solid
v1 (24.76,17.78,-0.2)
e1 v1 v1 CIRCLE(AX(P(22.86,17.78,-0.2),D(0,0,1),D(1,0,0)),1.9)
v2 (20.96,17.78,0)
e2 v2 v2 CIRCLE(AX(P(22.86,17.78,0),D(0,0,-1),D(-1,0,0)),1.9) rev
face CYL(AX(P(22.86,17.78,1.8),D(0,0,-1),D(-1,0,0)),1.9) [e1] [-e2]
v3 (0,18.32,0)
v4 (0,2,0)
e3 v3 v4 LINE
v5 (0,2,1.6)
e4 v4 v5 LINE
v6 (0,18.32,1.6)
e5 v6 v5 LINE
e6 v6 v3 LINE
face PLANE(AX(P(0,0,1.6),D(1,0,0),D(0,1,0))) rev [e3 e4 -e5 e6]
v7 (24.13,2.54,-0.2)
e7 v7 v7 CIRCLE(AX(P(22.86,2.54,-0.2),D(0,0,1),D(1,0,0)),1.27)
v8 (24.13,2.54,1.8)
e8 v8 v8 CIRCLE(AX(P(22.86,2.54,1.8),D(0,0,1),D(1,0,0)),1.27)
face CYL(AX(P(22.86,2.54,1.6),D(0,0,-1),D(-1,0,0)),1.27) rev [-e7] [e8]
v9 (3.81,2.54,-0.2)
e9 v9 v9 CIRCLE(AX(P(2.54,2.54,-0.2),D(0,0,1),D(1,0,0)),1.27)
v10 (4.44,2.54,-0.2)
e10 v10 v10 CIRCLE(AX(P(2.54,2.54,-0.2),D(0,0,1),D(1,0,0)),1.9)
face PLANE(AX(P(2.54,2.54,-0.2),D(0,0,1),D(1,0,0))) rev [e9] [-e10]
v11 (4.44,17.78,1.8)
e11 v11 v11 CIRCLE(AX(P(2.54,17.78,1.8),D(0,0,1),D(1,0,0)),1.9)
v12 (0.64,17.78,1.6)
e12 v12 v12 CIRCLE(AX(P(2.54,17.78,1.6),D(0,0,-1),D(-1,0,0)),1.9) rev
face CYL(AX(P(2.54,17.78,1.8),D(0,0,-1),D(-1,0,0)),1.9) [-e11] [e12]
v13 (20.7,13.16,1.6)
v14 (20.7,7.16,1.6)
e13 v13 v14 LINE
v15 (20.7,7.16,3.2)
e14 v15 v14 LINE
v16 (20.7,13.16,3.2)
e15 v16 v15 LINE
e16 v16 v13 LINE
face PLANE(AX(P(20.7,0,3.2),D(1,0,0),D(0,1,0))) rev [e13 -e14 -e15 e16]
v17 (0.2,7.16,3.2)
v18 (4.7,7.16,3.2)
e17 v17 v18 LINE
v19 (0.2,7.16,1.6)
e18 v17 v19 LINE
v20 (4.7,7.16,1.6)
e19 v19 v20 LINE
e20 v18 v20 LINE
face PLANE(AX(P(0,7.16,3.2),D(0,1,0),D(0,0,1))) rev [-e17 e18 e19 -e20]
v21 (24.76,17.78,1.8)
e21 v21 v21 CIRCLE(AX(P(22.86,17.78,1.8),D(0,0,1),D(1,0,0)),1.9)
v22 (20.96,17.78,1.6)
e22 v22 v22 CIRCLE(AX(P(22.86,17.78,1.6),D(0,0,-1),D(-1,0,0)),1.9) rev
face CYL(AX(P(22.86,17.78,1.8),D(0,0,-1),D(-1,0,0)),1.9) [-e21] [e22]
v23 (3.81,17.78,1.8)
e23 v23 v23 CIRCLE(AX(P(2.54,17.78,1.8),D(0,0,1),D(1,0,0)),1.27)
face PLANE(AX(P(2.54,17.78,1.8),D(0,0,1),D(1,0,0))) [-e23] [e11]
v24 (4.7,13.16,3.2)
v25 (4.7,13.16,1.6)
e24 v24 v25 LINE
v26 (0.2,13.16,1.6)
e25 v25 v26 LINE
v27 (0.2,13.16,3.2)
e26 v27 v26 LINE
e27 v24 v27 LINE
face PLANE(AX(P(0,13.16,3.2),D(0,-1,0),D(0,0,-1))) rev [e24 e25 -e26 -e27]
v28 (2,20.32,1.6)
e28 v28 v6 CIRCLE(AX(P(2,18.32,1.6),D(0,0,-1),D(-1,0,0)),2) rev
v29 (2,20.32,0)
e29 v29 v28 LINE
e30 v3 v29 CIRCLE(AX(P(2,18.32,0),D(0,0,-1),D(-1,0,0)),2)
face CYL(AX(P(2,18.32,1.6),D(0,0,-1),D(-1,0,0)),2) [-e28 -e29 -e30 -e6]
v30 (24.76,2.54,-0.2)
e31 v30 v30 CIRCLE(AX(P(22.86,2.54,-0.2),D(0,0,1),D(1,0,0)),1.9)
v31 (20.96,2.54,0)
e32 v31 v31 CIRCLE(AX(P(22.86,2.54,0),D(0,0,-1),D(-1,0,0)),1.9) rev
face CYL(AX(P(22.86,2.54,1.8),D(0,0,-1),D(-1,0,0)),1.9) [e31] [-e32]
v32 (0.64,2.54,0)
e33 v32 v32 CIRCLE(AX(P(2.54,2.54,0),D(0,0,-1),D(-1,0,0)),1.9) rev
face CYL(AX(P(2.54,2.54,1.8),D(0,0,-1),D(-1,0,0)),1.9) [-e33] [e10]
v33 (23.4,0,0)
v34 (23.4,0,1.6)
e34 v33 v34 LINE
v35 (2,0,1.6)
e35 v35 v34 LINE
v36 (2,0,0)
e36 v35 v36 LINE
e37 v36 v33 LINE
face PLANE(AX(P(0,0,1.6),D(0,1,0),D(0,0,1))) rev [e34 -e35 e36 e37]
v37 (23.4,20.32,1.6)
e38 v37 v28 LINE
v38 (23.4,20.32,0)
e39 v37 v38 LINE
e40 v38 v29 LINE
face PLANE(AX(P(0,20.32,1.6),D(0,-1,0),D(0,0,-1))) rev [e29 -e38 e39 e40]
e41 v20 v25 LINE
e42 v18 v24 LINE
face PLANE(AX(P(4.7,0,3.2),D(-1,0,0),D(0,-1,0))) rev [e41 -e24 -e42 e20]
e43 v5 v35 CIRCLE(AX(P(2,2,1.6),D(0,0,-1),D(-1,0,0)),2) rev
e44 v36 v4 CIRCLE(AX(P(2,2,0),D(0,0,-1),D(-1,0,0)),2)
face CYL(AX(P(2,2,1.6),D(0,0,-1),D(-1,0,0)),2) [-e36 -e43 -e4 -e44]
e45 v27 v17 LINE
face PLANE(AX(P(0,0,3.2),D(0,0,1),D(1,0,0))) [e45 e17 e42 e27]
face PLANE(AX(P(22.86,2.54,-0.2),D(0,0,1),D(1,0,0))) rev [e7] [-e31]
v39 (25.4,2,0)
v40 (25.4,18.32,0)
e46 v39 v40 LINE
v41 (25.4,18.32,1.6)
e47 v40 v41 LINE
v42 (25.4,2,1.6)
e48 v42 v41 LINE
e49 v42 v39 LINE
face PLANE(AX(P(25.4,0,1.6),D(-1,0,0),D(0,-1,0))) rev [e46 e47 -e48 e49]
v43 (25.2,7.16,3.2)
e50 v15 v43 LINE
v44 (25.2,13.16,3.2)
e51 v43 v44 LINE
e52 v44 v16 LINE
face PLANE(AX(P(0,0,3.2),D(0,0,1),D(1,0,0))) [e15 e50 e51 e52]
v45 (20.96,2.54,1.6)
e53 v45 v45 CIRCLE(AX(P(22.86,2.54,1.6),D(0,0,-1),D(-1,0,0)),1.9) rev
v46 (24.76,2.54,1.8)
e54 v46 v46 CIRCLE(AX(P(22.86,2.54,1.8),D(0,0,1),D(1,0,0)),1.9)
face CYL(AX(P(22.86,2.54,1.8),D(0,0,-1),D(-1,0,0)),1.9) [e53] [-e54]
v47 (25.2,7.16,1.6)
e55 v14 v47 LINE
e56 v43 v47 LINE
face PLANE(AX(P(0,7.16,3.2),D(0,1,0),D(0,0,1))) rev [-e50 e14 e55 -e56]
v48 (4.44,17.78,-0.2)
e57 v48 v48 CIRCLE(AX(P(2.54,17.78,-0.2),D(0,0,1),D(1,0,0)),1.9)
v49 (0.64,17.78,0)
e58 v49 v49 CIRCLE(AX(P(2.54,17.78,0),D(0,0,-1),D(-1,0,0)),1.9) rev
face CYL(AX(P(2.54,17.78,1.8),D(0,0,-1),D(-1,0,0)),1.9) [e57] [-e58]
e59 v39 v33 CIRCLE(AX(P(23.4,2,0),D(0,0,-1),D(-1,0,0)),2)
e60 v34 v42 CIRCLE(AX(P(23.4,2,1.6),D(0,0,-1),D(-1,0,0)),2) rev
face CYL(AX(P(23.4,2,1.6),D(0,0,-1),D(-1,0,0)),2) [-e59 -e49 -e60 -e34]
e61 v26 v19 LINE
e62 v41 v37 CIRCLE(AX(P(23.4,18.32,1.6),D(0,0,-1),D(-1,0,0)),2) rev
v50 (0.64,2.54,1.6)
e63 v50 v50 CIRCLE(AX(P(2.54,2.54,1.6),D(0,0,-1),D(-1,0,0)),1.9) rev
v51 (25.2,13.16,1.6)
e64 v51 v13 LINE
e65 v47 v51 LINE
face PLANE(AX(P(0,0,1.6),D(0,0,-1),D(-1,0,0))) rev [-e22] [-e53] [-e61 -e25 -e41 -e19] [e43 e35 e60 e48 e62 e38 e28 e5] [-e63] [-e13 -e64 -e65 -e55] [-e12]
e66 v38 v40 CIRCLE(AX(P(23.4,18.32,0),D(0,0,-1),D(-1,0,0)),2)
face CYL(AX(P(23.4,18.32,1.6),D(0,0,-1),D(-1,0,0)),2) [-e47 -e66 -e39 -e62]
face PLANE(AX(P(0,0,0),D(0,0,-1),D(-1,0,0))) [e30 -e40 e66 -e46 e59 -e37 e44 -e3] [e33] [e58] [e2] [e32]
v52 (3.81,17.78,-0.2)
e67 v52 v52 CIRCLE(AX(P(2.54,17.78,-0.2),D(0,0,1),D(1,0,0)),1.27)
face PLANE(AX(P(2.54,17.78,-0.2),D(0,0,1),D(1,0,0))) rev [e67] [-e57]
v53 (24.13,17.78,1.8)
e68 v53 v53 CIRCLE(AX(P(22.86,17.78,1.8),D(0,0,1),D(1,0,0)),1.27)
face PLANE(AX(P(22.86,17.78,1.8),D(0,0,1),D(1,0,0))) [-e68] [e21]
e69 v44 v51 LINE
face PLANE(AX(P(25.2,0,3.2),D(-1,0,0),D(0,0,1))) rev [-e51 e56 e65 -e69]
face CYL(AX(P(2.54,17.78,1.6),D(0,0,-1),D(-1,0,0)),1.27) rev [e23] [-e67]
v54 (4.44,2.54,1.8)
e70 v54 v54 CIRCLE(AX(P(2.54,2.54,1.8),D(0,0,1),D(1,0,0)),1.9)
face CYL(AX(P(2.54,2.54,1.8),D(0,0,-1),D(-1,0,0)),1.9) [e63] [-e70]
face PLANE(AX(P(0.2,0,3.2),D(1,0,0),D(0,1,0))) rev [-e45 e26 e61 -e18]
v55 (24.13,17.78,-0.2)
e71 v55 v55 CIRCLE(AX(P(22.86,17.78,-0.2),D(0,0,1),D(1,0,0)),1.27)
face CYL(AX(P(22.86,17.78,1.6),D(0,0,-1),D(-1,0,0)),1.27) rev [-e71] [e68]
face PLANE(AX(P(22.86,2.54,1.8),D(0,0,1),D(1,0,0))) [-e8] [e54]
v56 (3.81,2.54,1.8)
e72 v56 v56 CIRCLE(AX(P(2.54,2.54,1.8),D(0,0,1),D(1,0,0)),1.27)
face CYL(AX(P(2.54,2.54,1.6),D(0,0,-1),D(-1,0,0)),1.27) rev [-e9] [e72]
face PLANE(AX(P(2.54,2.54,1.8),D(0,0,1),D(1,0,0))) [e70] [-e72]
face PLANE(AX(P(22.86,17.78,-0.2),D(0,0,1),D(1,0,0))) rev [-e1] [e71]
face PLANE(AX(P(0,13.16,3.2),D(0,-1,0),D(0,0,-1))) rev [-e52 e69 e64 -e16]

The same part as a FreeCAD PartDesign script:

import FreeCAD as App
import Part
import Sketcher


def edges_at(feature, points):
    """Names of the edges that pass closest to the given points."""
    edges = feature.Shape.Edges
    near = lambda p: min(range(len(edges)), key=lambda i: edges[i].distToShape(Part.Vertex(*p))[0])
    return sorted({f"Edge{near(p) + 1}" for p in points})

doc = App.newDocument("Part")
body = doc.addObject("PartDesign::Body", "Body")

# Sketch on XY plane
sketch1 = body.newObject("Sketcher::SketchObject", "Sketch")
sketch1.AttachmentSupport = (doc.getObject("XY_Plane"), [""])
sketch1.MapMode = "FlatFace"
sketch1.addGeometry(Part.LineSegment(App.Vector(0, 20, 0), App.Vector(0, 0, 0)), False)
sketch1.addGeometry(Part.LineSegment(App.Vector(0, 0, 0), App.Vector(25, 0, 0)), False)
sketch1.addGeometry(Part.LineSegment(App.Vector(25, 0, 0), App.Vector(25, 20, 0)), False)
sketch1.addGeometry(Part.LineSegment(App.Vector(25, 20, 0), App.Vector(0, 20, 0)), False)
sketch1.addConstraint(Sketcher.Constraint("Coincident", 0, 2, 1, 1))
sketch1.addConstraint(Sketcher.Constraint("Coincident", 1, 2, 2, 1))
sketch1.addConstraint(Sketcher.Constraint("Coincident", 2, 2, 3, 1))
sketch1.addConstraint(Sketcher.Constraint("Coincident", 3, 2, 0, 1))
sketch1.addConstraint(Sketcher.Constraint("Vertical", 0))
sketch1.addConstraint(Sketcher.Constraint("Horizontal", 1))
sketch1.addConstraint(Sketcher.Constraint("Vertical", 2))
sketch1.addConstraint(Sketcher.Constraint("Horizontal", 3))
sketch1.addConstraint(Sketcher.Constraint("Coincident", 0, 2, -1, 1))
sketch1.addConstraint(Sketcher.Constraint("DistanceX", 1, 1, 1, 2, 25.4))
sketch1.addConstraint(Sketcher.Constraint("DistanceY", 0, 2, 0, 1, 20.32))
pad1 = body.newObject("PartDesign::Pad", "Pad")
pad1.Profile = sketch1
pad1.Length = 1.6
doc.recompute()

fillet = body.newObject("PartDesign::Fillet", "Fillet")
fillet.Base = (pad1, edges_at(pad1, [
    (0, 20.32, 0.8),
    (25.4, 20.32, 0.8),
    (25.4, 0, 0.8),
    (0, 0, 0.8),
]))
fillet.Radius = 2

# Sketch on XY plane
sketch2 = body.newObject("Sketcher::SketchObject", "Sketch001")
sketch2.AttachmentSupport = (doc.getObject("XY_Plane"), [""])
sketch2.MapMode = "FlatFace"
sketch2.addGeometry(Part.Circle(App.Vector(2.5, 17.8, 0), App.Vector(0, 0, 1), 1.3), False)
sketch2.addGeometry(Part.Circle(App.Vector(22.9, 17.8, 0), App.Vector(0, 0, 1), 1.3), False)
sketch2.addGeometry(Part.Circle(App.Vector(22.9, 2.5, 0), App.Vector(0, 0, 1), 1.3), False)
sketch2.addGeometry(Part.Circle(App.Vector(2.5, 2.5, 0), App.Vector(0, 0, 1), 1.3), False)
sketch2.addConstraint(Sketcher.Constraint("Equal", 0, 1))
sketch2.addConstraint(Sketcher.Constraint("Equal", 1, 2))
sketch2.addConstraint(Sketcher.Constraint("Equal", 2, 3))
sketch2.addConstraint(Sketcher.Constraint("Horizontal", 0, 3, 1, 3))
sketch2.addConstraint(Sketcher.Constraint("Horizontal", 2, 3, 3, 3))
sketch2.addConstraint(Sketcher.Constraint("Vertical", 1, 3, 2, 3))
sketch2.addConstraint(Sketcher.Constraint("Vertical", 0, 3, 3, 3))
sketch2.addConstraint(Sketcher.Constraint("Diameter", 0, 2.54))
sketch2.addConstraint(Sketcher.Constraint("DistanceX", -1, 1, 0, 3, 2.54))
sketch2.addConstraint(Sketcher.Constraint("DistanceY", -1, 1, 0, 3, 17.78))
sketch2.addConstraint(Sketcher.Constraint("DistanceX", -1, 1, 1, 3, 22.86))
sketch2.addConstraint(Sketcher.Constraint("DistanceY", -1, 1, 2, 3, 2.54))
pocket1 = body.newObject("PartDesign::Pocket", "Pocket")
pocket1.Profile = sketch2
pocket1.Type = "ThroughAll"
pocket1.Reversed = True

# Sketch on XY plane
sketch3 = body.newObject("Sketcher::SketchObject", "Sketch002")
sketch3.AttachmentSupport = (doc.getObject("XY_Plane"), [""])
sketch3.MapMode = "FlatFace"
sketch3.AttachmentOffset = App.Placement(App.Vector(0, 0, -0.2), App.Rotation())
sketch3.addGeometry(Part.Circle(App.Vector(2.5, 17.8, 0), App.Vector(0, 0, 1), 1.9), False)
sketch3.addGeometry(Part.Circle(App.Vector(2.5, 17.8, 0), App.Vector(0, 0, 1), 1.3), False)
sketch3.addGeometry(Part.Circle(App.Vector(22.9, 17.8, 0), App.Vector(0, 0, 1), 1.9), False)
sketch3.addGeometry(Part.Circle(App.Vector(22.9, 17.8, 0), App.Vector(0, 0, 1), 1.3), False)
sketch3.addGeometry(Part.Circle(App.Vector(22.9, 2.5, 0), App.Vector(0, 0, 1), 1.9), False)
sketch3.addGeometry(Part.Circle(App.Vector(22.9, 2.5, 0), App.Vector(0, 0, 1), 1.3), False)
sketch3.addGeometry(Part.Circle(App.Vector(2.5, 2.5, 0), App.Vector(0, 0, 1), 1.9), False)
sketch3.addGeometry(Part.Circle(App.Vector(2.5, 2.5, 0), App.Vector(0, 0, 1), 1.3), False)
sketch3.addConstraint(Sketcher.Constraint("Coincident", 1, 3, 0, 3))
sketch3.addConstraint(Sketcher.Constraint("Coincident", 3, 3, 2, 3))
sketch3.addConstraint(Sketcher.Constraint("Coincident", 5, 3, 4, 3))
sketch3.addConstraint(Sketcher.Constraint("Coincident", 7, 3, 6, 3))
sketch3.addConstraint(Sketcher.Constraint("Equal", 0, 2))
sketch3.addConstraint(Sketcher.Constraint("Equal", 1, 3))
sketch3.addConstraint(Sketcher.Constraint("Equal", 2, 4))
sketch3.addConstraint(Sketcher.Constraint("Equal", 3, 5))
sketch3.addConstraint(Sketcher.Constraint("Equal", 4, 6))
sketch3.addConstraint(Sketcher.Constraint("Equal", 5, 7))
sketch3.addConstraint(Sketcher.Constraint("Horizontal", 1, 3, 2, 3))
sketch3.addConstraint(Sketcher.Constraint("Horizontal", 5, 3, 6, 3))
sketch3.addConstraint(Sketcher.Constraint("Vertical", 3, 3, 4, 3))
sketch3.addConstraint(Sketcher.Constraint("Vertical", 1, 3, 6, 3))
sketch3.addConstraint(Sketcher.Constraint("Diameter", 0, 3.8))
sketch3.addConstraint(Sketcher.Constraint("Diameter", 1, 2.54))
sketch3.addConstraint(Sketcher.Constraint("DistanceX", -1, 1, 0, 3, 2.54))
sketch3.addConstraint(Sketcher.Constraint("DistanceY", -1, 1, 0, 3, 17.78))
sketch3.addConstraint(Sketcher.Constraint("DistanceX", -1, 1, 2, 3, 22.86))
sketch3.addConstraint(Sketcher.Constraint("DistanceY", -1, 1, 4, 3, 2.54))
pad2 = body.newObject("PartDesign::Pad", "Pad001")
pad2.Profile = sketch3
pad2.Length = 2

# Sketch on XY plane
sketch4 = body.newObject("Sketcher::SketchObject", "Sketch003")
sketch4.AttachmentSupport = (doc.getObject("XY_Plane"), [""])
sketch4.MapMode = "FlatFace"
sketch4.AttachmentOffset = App.Placement(App.Vector(0, 0, 1.6), App.Rotation())
sketch4.addGeometry(Part.LineSegment(App.Vector(0.2, 13.2, 0), App.Vector(0.2, 7.2, 0)), False)
sketch4.addGeometry(Part.LineSegment(App.Vector(0.2, 7.2, 0), App.Vector(4.7, 7.2, 0)), False)
sketch4.addGeometry(Part.LineSegment(App.Vector(4.7, 7.2, 0), App.Vector(4.7, 13.2, 0)), False)
sketch4.addGeometry(Part.LineSegment(App.Vector(4.7, 13.2, 0), App.Vector(0.2, 13.2, 0)), False)
sketch4.addGeometry(Part.LineSegment(App.Vector(20.7, 13.2, 0), App.Vector(20.7, 7.2, 0)), False)
sketch4.addGeometry(Part.LineSegment(App.Vector(20.7, 7.2, 0), App.Vector(25.2, 7.2, 0)), False)
sketch4.addGeometry(Part.LineSegment(App.Vector(25.2, 7.2, 0), App.Vector(25.2, 13.2, 0)), False)
sketch4.addGeometry(Part.LineSegment(App.Vector(25.2, 13.2, 0), App.Vector(20.7, 13.2, 0)), False)
sketch4.addConstraint(Sketcher.Constraint("Coincident", 0, 2, 1, 1))
sketch4.addConstraint(Sketcher.Constraint("Coincident", 1, 2, 2, 1))
sketch4.addConstraint(Sketcher.Constraint("Coincident", 2, 2, 3, 1))
sketch4.addConstraint(Sketcher.Constraint("Coincident", 3, 2, 0, 1))
sketch4.addConstraint(Sketcher.Constraint("Coincident", 4, 2, 5, 1))
sketch4.addConstraint(Sketcher.Constraint("Coincident", 5, 2, 6, 1))
sketch4.addConstraint(Sketcher.Constraint("Coincident", 6, 2, 7, 1))
sketch4.addConstraint(Sketcher.Constraint("Coincident", 7, 2, 4, 1))
sketch4.addConstraint(Sketcher.Constraint("Vertical", 0))
sketch4.addConstraint(Sketcher.Constraint("Horizontal", 1))
sketch4.addConstraint(Sketcher.Constraint("Vertical", 2))
sketch4.addConstraint(Sketcher.Constraint("Horizontal", 3))
sketch4.addConstraint(Sketcher.Constraint("Vertical", 4))
sketch4.addConstraint(Sketcher.Constraint("Horizontal", 5))
sketch4.addConstraint(Sketcher.Constraint("Vertical", 6))
sketch4.addConstraint(Sketcher.Constraint("Horizontal", 7))
sketch4.addConstraint(Sketcher.Constraint("Horizontal", 1, 2, 4, 2))
sketch4.addConstraint(Sketcher.Constraint("Horizontal", 3, 2, 6, 2))
sketch4.addConstraint(Sketcher.Constraint("Equal", 3, 5))
sketch4.addConstraint(Sketcher.Constraint("DistanceY", 0, 2, 0, 1, 6.0))
sketch4.addConstraint(Sketcher.Constraint("DistanceX", 1, 1, 1, 2, 4.5))
sketch4.addConstraint(Sketcher.Constraint("DistanceX", 1, 2, 4, 2, 16.0))
sketch4.addConstraint(Sketcher.Constraint("DistanceX", -1, 1, 0, 2, 0.2))
sketch4.addConstraint(Sketcher.Constraint("DistanceY", -1, 1, 0, 2, 7.16))
pad3 = body.newObject("PartDesign::Pad", "Pad002")
pad3.Profile = sketch4
pad3.Length = 1.6

doc.recompute()
